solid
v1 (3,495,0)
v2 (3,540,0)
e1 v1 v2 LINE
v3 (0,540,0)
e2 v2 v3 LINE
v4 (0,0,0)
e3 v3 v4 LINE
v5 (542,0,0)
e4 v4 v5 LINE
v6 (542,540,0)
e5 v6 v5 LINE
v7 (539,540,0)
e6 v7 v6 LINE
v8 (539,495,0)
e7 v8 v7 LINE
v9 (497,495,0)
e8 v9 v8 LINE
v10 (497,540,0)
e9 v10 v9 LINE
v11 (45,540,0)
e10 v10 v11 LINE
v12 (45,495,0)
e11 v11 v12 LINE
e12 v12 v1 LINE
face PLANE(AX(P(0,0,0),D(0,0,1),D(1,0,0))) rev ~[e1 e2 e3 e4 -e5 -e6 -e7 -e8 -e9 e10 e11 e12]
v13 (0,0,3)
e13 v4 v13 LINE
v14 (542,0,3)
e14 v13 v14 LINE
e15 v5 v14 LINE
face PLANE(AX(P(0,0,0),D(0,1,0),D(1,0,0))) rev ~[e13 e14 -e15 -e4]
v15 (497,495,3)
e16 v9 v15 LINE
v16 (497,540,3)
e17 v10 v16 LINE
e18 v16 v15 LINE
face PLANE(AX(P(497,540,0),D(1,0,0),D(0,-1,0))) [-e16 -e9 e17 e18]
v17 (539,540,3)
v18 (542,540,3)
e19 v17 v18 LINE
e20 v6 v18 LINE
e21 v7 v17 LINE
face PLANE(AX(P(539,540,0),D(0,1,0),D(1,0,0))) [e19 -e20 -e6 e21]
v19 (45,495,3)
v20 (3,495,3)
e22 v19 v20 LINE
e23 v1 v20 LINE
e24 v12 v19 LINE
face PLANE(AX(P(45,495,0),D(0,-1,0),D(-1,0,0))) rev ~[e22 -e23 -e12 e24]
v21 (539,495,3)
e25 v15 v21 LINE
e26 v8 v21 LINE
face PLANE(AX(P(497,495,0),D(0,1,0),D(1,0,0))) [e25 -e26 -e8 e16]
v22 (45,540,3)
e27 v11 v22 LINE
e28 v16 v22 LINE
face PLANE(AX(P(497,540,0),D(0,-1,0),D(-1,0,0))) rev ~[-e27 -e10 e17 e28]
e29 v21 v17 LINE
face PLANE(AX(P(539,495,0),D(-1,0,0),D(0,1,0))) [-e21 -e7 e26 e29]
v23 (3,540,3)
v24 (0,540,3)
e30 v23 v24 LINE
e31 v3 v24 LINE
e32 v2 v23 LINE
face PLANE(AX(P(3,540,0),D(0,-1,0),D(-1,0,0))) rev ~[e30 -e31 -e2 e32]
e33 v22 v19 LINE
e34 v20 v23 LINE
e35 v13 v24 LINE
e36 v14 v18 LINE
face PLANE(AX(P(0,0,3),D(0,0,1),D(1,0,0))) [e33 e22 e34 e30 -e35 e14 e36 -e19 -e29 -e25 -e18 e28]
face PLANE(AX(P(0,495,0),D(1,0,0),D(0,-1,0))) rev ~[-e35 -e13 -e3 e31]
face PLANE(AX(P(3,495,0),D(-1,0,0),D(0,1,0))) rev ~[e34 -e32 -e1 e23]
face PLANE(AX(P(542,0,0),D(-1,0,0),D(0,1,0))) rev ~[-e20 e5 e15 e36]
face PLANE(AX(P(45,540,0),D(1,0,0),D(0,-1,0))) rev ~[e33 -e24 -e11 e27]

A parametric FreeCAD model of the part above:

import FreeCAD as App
import Part
import Sketcher
from FreeCAD import Vector
Q = App.Units.Quantity

doc = App.newDocument("Part")
body = doc.addObject("PartDesign::Body", "Body")

# Sketch on XY plane
sketch1 = doc.addObject("Sketcher::SketchObject", "Sketch")
body.addObject(sketch1)
sketch1.AttachmentSupport = (doc.XY_Plane, [""])
sketch1.MapMode = "FlatFace"
sketch1.addGeometry([
    Part.LineSegment(Vector(0, 0, 0), Vector(542, 0, 0)),  # 0
    Part.LineSegment(Vector(542, 0, 0), Vector(542, 540, 0)),  # 1
    Part.LineSegment(Vector(542, 540, 0), Vector(539, 540, 0)),  # 2
    Part.LineSegment(Vector(539, 540, 0), Vector(539, 495, 0)),  # 3
    Part.LineSegment(Vector(539, 495, 0), Vector(497, 495, 0)),  # 4
    Part.LineSegment(Vector(497, 495, 0), Vector(497, 540, 0)),  # 5
    Part.LineSegment(Vector(497, 540, 0), Vector(45, 540, 0)),  # 6
    Part.LineSegment(Vector(45, 540, 0), Vector(45, 495, 0)),  # 7
    Part.LineSegment(Vector(45, 495, 0), Vector(3, 495, 0)),  # 8
    Part.LineSegment(Vector(3, 495, 0), Vector(3, 540, 0)),  # 9
    Part.LineSegment(Vector(3, 540, 0), Vector(0, 540, 0)),  # 10
    Part.LineSegment(Vector(0, 540, 0), Vector(0, 0, 0)),  # 11
], False)
sketch1.addConstraint([
    Sketcher.Constraint("Coincident", 0, 2, 1, 1),
    Sketcher.Constraint("Coincident", 1, 2, 2, 1),
    Sketcher.Constraint("Coincident", 2, 2, 3, 1),
    Sketcher.Constraint("Coincident", 3, 2, 4, 1),
    Sketcher.Constraint("Coincident", 4, 2, 5, 1),
    Sketcher.Constraint("Coincident", 5, 2, 6, 1),
    Sketcher.Constraint("Coincident", 6, 2, 7, 1),
    Sketcher.Constraint("Coincident", 7, 2, 8, 1),
    Sketcher.Constraint("Coincident", 8, 2, 9, 1),
    Sketcher.Constraint("Coincident", 9, 2, 10, 1),
    Sketcher.Constraint("Coincident", 10, 2, 11, 1),
    Sketcher.Constraint("Coincident", 11, 2, 0, 1),
    Sketcher.Constraint("Horizontal", 0),
    Sketcher.Constraint("Vertical", 1),
    Sketcher.Constraint("Horizontal", 2),
    Sketcher.Constraint("Vertical", 3),
    Sketcher.Constraint("Horizontal", 4),
    Sketcher.Constraint("Vertical", 5),
    Sketcher.Constraint("Horizontal", 6),
    Sketcher.Constraint("Vertical", 7),
    Sketcher.Constraint("Horizontal", 8),
    Sketcher.Constraint("Vertical", 9),
    Sketcher.Constraint("Horizontal", 10),
    Sketcher.Constraint("Vertical", 11),
    Sketcher.Constraint("Coincident", 11, 2, -1, 1),
    Sketcher.Constraint("Horizontal", 2, 2, 5, 2),
    Sketcher.Constraint("Horizontal", 4, 2, 7, 2),
    Sketcher.Constraint("Horizontal", 6, 2, 9, 2),
    Sketcher.Constraint("Equal", 4, 8),
    Sketcher.Constraint("Equal", 2, 10),
    Sketcher.Constraint("DistanceX", 0, 1, 0, 2, Q("542 mm")),
    Sketcher.Constraint("DistanceX", 2, 2, 2, 1, Q("3 mm")),
    Sketcher.Constraint("DistanceY", 1, 1, 1, 2, Q("540 mm")),
    Sketcher.Constraint("DistanceY", 3, 2, 3, 1, Q("45 mm")),
    Sketcher.Constraint("DistanceX", -1, 1, 6, 2, Q("45 mm")),
])
pad1 = doc.addObject("PartDesign::Pad", "Pad")
body.addObject(pad1)
pad1.Profile = sketch1
pad1.Length = 3

doc.recompute()
